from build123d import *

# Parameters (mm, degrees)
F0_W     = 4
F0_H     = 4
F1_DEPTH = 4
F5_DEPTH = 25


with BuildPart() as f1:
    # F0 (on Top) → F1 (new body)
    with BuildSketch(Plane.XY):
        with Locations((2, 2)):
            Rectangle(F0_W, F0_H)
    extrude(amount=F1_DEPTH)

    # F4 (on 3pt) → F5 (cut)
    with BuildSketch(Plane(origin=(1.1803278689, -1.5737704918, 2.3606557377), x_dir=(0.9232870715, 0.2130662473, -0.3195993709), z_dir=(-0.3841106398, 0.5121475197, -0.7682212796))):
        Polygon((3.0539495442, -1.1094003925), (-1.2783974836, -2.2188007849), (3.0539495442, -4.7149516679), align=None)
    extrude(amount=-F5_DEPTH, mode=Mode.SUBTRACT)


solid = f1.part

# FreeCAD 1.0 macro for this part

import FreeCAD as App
import Part
import Sketcher


def add_polygon(sketch, points):
    """Adds a closed chain of lines whose ends are joined by coincident constraints."""
    first, n = sketch.GeometryCount, len(points)
    for a, b in zip(points, points[1:] + points[:1]):
        sketch.addGeometry(Part.LineSegment(App.Vector(*a, 0), App.Vector(*b, 0)), False)
    for i in range(n):
        sketch.addConstraint(Sketcher.Constraint("Coincident", first + i, 2, first + (i + 1) % n, 1))

doc = App.newDocument("Part")
body = doc.addObject("PartDesign::Body", "Body")

# Sketch on XY plane
sketch1 = doc.addObject("Sketcher::SketchObject", "Sketch")
body.addObject(sketch1)
sketch1.AttachmentSupport = (doc.XY_Plane, [""])
sketch1.MapMode = "FlatFace"
add_polygon(sketch1, [(0, 4), (0, 0), (4, 0), (4, 4)])  # lines 0-3
sketch1.addConstraint(Sketcher.Constraint("Vertical", 0))
sketch1.addConstraint(Sketcher.Constraint("Horizontal", 1))
sketch1.addConstraint(Sketcher.Constraint("Vertical", 2))
sketch1.addConstraint(Sketcher.Constraint("Horizontal", 3))
sketch1.addConstraint(Sketcher.Constraint("Coincident", 0, 2, -1, 1))
sketch1.addConstraint(Sketcher.Constraint("Equal", 3, 0))
sketch1.addConstraint(Sketcher.Constraint("DistanceX", 1, 1, 1, 2, 4.0))
pad1 = doc.addObject("PartDesign::Pad", "Pad")
body.addObject(pad1)
pad1.Profile = sketch1
pad1.Length = 4

# Sketch on an angled plane
sketch2 = doc.addObject("Sketcher::SketchObject", "Sketch001")
body.addObject(sketch2)
sketch2.Placement = App.Placement(App.Vector(1.180328, -1.57377, 2.360656), App.Rotation(App.Vector(0.923287071, 0.213066247, -0.319599371), App.Vector(0, -0.832050294, -0.554700196), App.Vector(-0.38411064, 0.51214752, -0.76822128), "ZXY"))
add_polygon(sketch2, [(3.05395, -1.1094), (-1.278397, -2.218801), (3.05395, -4.714952)])  # lines 0-2
sketch2.addConstraint(Sketcher.Constraint("Vertical", 2))
sketch2.addConstraint(Sketcher.Constraint("Distance", 1, 5.0))
sketch2.addConstraint(Sketcher.Constraint("DistanceY", 2, 1, 2, 2, 3.605551))
sketch2.addConstraint(Sketcher.Constraint("DistanceY", 0, 2, -1, 1, 2.218801))
sketch2.addConstraint(Sketcher.Constraint("DistanceY", 2, 2, -1, 1, 1.1094))
sketch2.addConstraint(Sketcher.Constraint("DistanceX", -1, 1, 1, 2, 3.05395))
pocket1 = doc.addObject("PartDesign::Pocket", "Pocket")
body.addObject(pocket1)
pocket1.Profile = sketch2
pocket1.Length = 25

doc.recompute()
